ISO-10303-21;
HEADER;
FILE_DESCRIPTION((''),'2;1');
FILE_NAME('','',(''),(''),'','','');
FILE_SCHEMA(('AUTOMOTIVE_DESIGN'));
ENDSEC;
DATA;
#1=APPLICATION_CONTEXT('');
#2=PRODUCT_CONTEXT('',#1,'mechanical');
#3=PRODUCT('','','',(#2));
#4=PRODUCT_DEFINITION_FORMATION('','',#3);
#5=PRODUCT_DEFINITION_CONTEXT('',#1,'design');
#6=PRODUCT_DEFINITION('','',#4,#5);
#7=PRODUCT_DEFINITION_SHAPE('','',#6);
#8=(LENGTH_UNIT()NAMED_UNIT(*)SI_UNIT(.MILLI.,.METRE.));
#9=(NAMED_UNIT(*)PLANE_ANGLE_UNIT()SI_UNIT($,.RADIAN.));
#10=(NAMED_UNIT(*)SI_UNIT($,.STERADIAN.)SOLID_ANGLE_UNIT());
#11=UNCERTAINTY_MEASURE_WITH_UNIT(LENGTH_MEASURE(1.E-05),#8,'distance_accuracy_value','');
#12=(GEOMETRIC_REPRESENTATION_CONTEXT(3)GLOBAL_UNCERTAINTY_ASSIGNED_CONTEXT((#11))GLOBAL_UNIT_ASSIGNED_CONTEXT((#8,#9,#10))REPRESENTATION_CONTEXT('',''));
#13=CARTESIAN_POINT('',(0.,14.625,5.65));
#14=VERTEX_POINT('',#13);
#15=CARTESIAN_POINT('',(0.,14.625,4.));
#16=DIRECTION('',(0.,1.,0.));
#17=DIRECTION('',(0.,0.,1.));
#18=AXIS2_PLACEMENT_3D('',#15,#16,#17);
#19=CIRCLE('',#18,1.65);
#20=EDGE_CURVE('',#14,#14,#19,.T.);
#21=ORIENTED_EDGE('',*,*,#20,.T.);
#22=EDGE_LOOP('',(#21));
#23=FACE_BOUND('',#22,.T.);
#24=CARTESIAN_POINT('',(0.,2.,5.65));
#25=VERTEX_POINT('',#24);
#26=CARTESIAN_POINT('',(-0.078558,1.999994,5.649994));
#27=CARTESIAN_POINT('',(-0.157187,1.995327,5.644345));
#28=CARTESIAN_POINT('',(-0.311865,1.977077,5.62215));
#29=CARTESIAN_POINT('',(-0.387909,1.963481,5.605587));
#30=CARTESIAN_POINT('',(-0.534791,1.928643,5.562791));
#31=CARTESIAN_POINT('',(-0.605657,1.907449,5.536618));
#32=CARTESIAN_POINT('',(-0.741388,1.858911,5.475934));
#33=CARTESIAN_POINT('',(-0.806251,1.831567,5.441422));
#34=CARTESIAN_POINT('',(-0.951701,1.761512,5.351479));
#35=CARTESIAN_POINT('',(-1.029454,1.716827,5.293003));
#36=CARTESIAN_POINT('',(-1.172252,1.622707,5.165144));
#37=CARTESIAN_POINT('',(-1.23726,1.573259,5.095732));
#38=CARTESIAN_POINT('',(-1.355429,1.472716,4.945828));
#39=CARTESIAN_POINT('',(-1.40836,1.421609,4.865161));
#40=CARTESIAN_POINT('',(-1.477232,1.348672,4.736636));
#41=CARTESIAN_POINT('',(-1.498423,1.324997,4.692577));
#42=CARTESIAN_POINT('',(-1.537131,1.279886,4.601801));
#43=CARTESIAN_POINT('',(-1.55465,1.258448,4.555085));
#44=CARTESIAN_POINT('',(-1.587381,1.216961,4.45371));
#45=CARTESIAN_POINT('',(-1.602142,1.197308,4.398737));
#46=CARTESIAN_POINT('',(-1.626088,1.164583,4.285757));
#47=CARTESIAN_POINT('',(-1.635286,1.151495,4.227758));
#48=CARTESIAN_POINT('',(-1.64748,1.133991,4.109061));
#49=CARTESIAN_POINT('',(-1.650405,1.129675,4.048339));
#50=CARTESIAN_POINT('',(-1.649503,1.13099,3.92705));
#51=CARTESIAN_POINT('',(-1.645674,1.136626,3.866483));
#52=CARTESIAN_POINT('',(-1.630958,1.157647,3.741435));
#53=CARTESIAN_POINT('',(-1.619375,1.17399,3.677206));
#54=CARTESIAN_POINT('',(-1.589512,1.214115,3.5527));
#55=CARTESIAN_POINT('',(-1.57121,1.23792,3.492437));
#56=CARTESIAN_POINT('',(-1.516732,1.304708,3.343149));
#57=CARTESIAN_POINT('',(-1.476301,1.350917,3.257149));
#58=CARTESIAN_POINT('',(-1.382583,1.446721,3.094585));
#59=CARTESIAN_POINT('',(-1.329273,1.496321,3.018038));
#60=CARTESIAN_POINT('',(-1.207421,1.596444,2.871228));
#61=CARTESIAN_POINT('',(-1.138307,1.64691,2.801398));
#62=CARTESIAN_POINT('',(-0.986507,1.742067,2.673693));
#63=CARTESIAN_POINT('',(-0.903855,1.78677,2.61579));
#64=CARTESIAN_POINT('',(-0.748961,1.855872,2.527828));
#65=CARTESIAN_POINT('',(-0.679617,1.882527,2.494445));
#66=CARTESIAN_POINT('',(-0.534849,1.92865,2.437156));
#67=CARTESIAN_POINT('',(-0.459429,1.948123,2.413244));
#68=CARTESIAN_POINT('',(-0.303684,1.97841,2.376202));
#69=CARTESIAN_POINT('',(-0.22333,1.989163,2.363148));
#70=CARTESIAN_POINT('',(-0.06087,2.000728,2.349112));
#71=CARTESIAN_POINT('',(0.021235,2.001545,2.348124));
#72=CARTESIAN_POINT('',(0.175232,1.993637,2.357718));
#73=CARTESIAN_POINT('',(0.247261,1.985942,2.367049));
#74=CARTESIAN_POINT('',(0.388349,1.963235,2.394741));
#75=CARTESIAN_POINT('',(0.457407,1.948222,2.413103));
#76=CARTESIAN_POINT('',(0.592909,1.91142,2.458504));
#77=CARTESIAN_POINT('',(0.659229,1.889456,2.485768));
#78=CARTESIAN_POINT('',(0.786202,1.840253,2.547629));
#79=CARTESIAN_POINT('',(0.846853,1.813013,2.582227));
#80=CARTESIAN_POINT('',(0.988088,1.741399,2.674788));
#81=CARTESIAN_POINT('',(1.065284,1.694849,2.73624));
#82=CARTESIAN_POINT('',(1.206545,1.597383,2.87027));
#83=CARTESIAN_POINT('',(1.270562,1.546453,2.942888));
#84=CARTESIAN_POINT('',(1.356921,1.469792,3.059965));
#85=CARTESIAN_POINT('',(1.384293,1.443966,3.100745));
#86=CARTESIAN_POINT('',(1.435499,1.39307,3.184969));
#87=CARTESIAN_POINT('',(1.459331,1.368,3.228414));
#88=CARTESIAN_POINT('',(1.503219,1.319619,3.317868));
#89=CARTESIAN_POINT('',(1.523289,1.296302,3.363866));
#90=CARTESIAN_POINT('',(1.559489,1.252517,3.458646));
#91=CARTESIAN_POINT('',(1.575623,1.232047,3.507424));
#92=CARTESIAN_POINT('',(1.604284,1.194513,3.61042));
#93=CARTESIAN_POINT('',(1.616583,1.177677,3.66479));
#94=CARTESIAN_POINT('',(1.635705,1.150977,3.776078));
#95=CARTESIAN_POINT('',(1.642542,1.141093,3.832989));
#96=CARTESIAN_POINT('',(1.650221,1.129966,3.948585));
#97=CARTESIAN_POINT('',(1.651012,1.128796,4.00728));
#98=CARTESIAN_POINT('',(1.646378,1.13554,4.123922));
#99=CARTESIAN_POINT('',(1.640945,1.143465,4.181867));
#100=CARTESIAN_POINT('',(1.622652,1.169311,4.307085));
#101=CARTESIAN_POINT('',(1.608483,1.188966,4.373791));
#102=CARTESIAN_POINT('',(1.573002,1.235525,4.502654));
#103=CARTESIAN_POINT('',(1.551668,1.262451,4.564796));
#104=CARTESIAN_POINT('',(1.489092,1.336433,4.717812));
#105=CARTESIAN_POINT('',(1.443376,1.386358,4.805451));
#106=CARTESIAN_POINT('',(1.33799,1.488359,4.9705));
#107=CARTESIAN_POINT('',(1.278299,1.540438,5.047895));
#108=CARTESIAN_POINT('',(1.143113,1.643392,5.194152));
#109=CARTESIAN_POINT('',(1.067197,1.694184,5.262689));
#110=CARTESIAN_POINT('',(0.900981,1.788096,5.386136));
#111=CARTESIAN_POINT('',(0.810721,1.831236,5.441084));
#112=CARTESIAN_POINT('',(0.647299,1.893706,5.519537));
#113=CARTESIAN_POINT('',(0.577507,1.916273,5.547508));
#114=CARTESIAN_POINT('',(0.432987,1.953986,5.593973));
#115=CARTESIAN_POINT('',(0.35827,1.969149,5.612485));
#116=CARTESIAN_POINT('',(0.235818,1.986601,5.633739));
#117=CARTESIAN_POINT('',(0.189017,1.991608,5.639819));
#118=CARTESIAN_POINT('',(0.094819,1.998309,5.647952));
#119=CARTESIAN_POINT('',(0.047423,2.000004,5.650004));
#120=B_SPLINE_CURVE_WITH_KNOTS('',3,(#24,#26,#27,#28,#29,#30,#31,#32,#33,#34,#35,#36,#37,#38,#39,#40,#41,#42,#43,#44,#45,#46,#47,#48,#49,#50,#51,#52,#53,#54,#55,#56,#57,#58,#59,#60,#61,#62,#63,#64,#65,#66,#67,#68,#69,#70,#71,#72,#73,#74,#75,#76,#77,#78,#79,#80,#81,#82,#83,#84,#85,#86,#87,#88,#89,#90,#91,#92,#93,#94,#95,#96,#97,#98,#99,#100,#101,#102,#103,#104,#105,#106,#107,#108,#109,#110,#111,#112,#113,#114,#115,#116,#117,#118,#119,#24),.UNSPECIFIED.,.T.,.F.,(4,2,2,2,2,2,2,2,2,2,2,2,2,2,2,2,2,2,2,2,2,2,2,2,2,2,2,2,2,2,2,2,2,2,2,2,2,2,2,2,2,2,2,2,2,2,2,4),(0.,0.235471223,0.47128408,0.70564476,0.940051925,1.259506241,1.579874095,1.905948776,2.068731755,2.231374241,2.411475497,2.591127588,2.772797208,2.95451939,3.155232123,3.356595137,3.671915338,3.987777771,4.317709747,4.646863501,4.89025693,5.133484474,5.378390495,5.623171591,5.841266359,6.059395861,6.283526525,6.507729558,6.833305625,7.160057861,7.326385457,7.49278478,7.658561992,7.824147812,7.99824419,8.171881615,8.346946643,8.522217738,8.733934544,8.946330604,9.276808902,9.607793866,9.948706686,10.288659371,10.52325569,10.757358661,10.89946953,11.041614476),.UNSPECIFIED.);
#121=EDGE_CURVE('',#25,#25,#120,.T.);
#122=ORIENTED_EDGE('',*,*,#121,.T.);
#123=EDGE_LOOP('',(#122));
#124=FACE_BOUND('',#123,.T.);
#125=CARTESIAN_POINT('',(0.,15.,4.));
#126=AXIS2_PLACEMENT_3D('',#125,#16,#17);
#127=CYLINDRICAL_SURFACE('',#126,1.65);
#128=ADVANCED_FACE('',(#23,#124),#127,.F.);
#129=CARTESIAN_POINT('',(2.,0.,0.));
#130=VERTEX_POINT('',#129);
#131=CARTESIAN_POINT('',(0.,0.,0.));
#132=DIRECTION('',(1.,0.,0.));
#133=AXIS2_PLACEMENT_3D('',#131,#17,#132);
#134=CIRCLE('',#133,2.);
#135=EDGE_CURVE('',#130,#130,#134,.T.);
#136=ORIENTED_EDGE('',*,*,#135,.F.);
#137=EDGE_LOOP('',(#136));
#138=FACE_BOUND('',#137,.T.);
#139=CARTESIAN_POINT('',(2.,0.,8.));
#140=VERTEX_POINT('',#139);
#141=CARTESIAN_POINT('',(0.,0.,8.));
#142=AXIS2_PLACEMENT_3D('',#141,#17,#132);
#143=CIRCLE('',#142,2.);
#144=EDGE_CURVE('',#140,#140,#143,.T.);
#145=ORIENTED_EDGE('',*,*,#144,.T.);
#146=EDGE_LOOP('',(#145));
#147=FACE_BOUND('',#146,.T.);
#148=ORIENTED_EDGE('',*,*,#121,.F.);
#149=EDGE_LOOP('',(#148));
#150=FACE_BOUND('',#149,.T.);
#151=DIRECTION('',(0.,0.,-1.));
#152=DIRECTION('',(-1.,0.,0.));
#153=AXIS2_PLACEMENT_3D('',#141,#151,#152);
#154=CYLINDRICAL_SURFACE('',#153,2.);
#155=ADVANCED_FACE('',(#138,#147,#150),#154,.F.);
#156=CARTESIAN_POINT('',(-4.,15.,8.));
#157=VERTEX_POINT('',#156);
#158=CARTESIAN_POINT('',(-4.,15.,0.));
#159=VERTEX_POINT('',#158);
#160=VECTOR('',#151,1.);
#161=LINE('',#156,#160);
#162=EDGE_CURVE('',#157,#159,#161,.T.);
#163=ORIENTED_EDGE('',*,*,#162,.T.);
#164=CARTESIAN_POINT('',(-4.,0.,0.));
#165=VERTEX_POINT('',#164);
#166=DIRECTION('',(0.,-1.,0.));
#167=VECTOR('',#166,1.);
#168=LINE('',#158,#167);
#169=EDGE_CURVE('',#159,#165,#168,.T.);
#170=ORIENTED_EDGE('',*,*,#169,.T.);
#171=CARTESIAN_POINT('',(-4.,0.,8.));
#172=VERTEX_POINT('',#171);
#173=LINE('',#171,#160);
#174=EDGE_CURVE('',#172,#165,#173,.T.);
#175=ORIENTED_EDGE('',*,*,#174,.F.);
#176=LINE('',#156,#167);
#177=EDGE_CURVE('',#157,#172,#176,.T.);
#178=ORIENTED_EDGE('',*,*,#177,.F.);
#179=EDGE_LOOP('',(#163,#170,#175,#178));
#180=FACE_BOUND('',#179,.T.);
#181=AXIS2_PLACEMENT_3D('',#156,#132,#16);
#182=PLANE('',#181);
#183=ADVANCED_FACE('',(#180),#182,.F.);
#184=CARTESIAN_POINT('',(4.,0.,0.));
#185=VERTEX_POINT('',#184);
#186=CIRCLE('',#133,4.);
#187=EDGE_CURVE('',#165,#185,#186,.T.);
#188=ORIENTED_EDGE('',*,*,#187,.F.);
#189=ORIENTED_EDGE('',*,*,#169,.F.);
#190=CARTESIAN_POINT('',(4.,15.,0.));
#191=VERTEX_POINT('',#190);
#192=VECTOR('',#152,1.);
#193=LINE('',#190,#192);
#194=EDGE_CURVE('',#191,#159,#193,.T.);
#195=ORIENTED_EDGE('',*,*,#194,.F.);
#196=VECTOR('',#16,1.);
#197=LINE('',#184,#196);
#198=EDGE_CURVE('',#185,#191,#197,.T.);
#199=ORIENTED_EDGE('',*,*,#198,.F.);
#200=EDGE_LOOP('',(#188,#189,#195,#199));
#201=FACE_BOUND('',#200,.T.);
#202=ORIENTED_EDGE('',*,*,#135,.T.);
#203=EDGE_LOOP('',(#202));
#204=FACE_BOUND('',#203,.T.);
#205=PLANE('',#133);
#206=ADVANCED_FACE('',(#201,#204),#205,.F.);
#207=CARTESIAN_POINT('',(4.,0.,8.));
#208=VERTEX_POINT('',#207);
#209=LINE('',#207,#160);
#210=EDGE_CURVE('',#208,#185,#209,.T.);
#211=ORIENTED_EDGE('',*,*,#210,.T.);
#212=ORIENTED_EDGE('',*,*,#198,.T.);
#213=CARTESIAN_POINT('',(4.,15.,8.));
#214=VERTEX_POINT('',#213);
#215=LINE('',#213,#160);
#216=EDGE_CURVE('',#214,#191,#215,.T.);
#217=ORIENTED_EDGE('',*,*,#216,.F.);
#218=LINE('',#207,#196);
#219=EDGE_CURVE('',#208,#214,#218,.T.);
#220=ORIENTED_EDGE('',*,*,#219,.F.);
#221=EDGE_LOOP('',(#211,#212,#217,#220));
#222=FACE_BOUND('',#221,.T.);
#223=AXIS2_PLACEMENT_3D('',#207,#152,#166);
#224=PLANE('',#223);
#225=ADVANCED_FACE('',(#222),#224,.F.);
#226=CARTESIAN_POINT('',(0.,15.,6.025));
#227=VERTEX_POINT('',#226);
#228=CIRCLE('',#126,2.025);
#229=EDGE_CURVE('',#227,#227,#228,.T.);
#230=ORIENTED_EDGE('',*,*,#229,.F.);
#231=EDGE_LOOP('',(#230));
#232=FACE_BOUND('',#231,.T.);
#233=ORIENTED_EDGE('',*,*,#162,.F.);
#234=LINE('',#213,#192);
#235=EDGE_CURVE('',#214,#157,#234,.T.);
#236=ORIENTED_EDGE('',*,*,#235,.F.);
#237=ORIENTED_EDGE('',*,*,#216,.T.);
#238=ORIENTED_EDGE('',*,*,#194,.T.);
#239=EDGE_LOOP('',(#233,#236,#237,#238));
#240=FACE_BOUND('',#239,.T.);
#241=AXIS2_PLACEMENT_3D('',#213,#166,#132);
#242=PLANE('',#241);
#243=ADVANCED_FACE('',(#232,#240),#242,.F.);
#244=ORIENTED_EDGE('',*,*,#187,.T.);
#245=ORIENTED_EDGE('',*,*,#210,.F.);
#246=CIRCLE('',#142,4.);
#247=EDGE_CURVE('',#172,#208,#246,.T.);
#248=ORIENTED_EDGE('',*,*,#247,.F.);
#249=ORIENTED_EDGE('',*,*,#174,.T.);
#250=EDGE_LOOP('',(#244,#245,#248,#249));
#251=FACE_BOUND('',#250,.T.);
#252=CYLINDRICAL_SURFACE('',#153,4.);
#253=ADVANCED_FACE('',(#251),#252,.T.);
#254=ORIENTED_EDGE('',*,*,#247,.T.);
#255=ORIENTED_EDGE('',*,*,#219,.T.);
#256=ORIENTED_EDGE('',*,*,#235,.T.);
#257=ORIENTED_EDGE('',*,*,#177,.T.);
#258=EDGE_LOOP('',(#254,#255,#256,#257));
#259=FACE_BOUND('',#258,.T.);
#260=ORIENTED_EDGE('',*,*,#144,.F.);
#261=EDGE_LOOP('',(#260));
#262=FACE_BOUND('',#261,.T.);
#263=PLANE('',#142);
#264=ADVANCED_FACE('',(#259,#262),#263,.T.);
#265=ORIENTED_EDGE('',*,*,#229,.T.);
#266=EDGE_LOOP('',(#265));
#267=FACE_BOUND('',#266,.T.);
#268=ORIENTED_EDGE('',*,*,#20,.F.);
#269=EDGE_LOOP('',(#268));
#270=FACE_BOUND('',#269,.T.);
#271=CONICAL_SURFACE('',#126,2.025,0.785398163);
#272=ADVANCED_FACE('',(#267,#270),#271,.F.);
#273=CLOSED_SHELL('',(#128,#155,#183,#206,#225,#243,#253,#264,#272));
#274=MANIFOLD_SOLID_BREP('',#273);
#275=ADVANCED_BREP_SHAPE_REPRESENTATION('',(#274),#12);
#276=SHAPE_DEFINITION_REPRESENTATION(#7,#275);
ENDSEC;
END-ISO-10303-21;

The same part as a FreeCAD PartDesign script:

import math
import FreeCAD as App
import Part
import Sketcher

doc = App.newDocument("Part")
body = doc.addObject("PartDesign::Body", "Body")

sketch1 = body.newObject("Sketcher::SketchObject", "Sketch")
sketch1.AttachmentSupport = (doc.getObject("XY_Plane"), [""])
sketch1.MapMode = "FlatFace"
sketch1.addGeometry([
    Part.LineSegment(App.Vector(-4, 15, 0), App.Vector(-4, 0, 0)),
    Part.ArcOfCircle(Part.Circle(App.Vector(0, 0, 0), App.Vector(0, 0, 1), 4), math.radians(180), math.radians(360)),
    Part.LineSegment(App.Vector(4, 0, 0), App.Vector(4, 15, 0)),
    Part.LineSegment(App.Vector(4, 15, 0), App.Vector(-4, 15, 0)),
    Part.Circle(App.Vector(0, 0, 0), App.Vector(0, 0, 1), 2),
], False)
sketch1.addConstraint([
    Sketcher.Constraint("Tangent", 0, 2, 1, 1),
    Sketcher.Constraint("Tangent", 1, 2, 2, 1),
    Sketcher.Constraint("Coincident", 2, 2, 3, 1),
    Sketcher.Constraint("Coincident", 3, 2, 0, 1),
    Sketcher.Constraint("Vertical", 0),
    Sketcher.Constraint("Vertical", 2),
    Sketcher.Constraint("Horizontal", 3),
    Sketcher.Constraint("Coincident", 1, 3, -1, 1),
    Sketcher.Constraint("Coincident", 4, 3, -1, 1),
    Sketcher.Constraint("Diameter", 4, 4.0),
    Sketcher.Constraint("Radius", 1, 4.0),
    Sketcher.Constraint("DistanceY", 0, 2, 0, 1, 15.0),
])
pad1 = body.newObject("PartDesign::Pad", "Pad")
pad1.Profile = sketch1
pad1.Length = 8

sketch2 = body.newObject("Sketcher::SketchObject", "Sketch001")
sketch2.AttachmentSupport = (doc.getObject("XZ_Plane"), [""])
sketch2.MapMode = "FlatFace"
sketch2.AttachmentOffset = App.Placement(App.Vector(0, 0, -15), App.Rotation())
sketch2.addGeometry(Part.Circle(App.Vector(0, 4, 0), App.Vector(0, 0, 1), 1.6), False)
sketch2.addConstraint([
    Sketcher.Constraint("PointOnObject", 0, 3, -2),
    Sketcher.Constraint("Diameter", 0, 3.3),
    Sketcher.Constraint("DistanceY", -1, 1, 0, 3, 4.0),
])
doc.recompute()
hole = body.newObject("PartDesign::Hole", "Hole")
hole.Profile = sketch2
hole.ThreadType = "None"
hole.Diameter = 3.3
hole.DepthType = "Dimension"
hole.Depth = 14.999
hole.DrillPoint = "Angled"
hole.DrillPointAngle = 118
hole.HoleCutType = "Countersink"
hole.HoleCutDiameter = 4.05
hole.HoleCutCountersinkAngle = 90
hole.Reversed = True

doc.recompute()
